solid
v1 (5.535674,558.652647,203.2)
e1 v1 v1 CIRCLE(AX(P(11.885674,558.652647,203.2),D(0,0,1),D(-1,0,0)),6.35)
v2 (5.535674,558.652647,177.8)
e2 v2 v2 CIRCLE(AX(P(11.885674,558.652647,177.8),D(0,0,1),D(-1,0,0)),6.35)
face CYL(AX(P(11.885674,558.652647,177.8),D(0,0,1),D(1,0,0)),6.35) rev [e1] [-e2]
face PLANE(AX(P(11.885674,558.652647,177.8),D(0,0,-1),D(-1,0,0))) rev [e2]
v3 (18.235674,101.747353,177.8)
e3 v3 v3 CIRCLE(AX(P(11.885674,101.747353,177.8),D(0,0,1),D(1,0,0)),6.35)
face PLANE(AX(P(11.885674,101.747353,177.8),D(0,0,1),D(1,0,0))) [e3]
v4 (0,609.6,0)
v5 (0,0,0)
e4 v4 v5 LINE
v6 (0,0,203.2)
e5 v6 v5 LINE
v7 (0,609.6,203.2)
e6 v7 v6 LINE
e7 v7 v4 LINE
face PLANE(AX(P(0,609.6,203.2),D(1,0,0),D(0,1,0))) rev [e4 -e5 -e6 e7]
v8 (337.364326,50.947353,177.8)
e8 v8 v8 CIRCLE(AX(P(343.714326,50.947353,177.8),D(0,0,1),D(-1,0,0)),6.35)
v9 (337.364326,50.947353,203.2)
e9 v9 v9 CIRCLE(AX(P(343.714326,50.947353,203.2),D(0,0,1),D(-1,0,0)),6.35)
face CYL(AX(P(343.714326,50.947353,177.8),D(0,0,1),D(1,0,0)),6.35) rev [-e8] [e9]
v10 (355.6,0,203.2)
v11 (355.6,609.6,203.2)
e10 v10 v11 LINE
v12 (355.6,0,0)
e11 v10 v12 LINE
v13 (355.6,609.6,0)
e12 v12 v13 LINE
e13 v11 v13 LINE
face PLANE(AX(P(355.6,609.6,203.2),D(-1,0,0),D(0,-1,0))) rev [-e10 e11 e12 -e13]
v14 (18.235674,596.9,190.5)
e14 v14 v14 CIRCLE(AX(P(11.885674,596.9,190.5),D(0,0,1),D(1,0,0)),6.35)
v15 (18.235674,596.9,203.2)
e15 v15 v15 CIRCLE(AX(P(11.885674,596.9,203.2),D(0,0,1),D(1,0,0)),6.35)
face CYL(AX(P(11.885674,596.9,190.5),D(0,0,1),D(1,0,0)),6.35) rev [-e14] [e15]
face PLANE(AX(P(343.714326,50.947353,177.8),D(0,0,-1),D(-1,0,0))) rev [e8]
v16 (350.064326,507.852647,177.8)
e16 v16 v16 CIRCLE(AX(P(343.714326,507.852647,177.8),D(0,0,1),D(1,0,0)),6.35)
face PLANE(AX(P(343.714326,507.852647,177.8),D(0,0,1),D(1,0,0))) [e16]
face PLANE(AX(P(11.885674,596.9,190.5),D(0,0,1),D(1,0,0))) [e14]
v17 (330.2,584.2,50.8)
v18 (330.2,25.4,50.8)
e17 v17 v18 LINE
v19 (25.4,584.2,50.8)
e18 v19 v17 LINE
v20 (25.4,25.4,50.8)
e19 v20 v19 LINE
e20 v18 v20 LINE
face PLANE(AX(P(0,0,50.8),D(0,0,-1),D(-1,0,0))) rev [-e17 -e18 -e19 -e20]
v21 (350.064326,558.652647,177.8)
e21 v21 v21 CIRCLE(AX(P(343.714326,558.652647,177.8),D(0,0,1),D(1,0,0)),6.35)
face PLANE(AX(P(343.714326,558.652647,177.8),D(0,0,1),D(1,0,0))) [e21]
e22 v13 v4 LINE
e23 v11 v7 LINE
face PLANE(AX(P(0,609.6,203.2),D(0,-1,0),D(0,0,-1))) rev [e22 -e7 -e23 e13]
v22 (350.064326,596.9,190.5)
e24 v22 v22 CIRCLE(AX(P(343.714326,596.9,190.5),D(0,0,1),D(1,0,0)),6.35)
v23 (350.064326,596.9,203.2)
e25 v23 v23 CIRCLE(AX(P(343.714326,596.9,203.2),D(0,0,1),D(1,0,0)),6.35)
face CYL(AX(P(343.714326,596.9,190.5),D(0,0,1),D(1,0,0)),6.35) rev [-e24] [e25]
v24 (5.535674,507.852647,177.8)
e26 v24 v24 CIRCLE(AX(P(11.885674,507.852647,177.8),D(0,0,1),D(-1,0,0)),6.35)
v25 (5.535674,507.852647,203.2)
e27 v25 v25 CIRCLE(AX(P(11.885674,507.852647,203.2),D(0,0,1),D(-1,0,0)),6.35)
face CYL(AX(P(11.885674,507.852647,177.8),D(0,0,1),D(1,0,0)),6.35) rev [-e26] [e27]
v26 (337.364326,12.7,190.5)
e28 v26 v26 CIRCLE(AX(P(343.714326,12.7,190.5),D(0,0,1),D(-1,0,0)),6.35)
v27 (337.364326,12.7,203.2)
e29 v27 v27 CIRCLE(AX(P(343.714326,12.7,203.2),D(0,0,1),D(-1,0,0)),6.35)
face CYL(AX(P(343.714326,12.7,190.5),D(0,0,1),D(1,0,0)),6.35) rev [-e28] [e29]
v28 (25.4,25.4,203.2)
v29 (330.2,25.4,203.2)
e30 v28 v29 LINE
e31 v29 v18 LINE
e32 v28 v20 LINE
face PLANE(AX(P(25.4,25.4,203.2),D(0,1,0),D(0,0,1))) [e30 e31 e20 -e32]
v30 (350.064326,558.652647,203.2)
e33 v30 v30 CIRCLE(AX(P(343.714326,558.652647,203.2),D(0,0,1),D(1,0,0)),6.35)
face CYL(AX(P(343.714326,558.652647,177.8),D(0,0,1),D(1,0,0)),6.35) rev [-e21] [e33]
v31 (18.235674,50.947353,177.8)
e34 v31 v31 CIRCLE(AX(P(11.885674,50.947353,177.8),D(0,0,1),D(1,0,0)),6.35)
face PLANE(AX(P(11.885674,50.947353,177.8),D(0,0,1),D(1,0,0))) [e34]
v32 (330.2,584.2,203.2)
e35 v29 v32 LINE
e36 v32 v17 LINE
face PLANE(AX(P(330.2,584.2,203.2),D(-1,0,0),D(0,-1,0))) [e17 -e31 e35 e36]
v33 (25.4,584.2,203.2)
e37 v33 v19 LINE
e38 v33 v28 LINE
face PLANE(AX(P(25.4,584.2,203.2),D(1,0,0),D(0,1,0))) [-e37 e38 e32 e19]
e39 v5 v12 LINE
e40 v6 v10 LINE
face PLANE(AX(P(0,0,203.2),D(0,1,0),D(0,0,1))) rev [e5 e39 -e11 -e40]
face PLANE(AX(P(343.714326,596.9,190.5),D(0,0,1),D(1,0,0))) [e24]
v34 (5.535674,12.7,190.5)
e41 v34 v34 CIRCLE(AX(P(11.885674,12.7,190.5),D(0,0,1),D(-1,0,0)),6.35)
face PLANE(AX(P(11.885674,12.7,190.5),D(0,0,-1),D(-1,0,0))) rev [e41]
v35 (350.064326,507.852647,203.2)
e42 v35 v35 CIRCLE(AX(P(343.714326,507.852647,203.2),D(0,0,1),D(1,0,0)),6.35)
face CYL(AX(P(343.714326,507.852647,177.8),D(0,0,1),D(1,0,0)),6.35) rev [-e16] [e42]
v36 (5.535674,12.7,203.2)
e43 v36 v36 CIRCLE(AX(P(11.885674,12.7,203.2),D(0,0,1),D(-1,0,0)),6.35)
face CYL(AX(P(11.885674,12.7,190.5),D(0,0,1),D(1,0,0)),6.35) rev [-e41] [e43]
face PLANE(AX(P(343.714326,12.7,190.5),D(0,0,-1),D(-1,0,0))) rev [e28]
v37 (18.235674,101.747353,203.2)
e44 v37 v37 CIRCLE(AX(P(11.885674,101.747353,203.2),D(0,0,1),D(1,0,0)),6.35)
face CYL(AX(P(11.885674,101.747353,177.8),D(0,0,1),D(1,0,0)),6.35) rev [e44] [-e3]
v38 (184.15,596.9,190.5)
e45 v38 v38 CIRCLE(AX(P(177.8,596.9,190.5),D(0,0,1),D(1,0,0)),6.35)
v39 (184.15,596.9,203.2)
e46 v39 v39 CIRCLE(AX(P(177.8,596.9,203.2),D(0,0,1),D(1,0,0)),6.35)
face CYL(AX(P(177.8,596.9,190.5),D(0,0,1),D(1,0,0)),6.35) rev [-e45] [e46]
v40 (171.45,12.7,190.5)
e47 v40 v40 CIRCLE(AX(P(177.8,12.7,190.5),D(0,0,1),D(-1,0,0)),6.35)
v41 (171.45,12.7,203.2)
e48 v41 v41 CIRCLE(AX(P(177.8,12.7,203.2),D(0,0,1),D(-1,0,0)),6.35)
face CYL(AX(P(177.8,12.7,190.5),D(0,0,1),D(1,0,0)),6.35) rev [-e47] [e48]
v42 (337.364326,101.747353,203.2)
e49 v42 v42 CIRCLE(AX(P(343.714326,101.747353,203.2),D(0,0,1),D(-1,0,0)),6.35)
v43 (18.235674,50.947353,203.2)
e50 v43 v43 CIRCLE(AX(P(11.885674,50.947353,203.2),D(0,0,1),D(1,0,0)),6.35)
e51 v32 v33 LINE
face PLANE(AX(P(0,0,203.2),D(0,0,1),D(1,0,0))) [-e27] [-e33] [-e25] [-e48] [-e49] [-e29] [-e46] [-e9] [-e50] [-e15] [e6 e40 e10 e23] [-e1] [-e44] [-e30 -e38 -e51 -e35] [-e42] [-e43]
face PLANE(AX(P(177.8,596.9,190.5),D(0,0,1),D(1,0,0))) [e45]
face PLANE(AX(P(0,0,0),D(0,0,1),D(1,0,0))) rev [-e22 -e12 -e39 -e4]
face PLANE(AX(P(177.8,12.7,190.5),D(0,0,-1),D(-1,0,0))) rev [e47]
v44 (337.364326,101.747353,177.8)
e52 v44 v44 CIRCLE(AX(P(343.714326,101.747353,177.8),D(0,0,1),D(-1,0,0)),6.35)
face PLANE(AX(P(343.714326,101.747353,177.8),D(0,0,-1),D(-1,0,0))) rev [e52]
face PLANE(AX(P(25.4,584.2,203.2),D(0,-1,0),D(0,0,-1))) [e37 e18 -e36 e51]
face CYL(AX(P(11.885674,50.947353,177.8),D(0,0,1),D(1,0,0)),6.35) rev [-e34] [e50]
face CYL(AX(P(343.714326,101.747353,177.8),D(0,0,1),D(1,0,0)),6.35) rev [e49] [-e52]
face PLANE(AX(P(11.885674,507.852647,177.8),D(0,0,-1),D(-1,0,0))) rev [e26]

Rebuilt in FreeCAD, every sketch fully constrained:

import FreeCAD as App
import Part
import Sketcher
Q = App.Units.Quantity

doc = App.newDocument("Part")
body = doc.addObject("PartDesign::Body", "Body")

sketch1 = body.newObject("Sketcher::SketchObject", "Sketch")
sketch1.AttachmentSupport = (doc.getObject("XY_Plane"), [""])
sketch1.MapMode = "FlatFace"
sketch1.addGeometry([
    Part.LineSegment(App.Vector(0, 610, 0), App.Vector(0, 0, 0)),
    Part.LineSegment(App.Vector(0, 0, 0), App.Vector(356, 0, 0)),
    Part.LineSegment(App.Vector(356, 0, 0), App.Vector(356, 610, 0)),
    Part.LineSegment(App.Vector(356, 610, 0), App.Vector(0, 610, 0)),
    Part.LineSegment(App.Vector(330, 25, 0), App.Vector(25, 25, 0)),
    Part.LineSegment(App.Vector(25, 25, 0), App.Vector(25, 584, 0)),
    Part.LineSegment(App.Vector(25, 584, 0), App.Vector(330, 584, 0)),
    Part.LineSegment(App.Vector(330, 584, 0), App.Vector(330, 25, 0)),
], False)
sketch1.addConstraint([
    Sketcher.Constraint("Coincident", 0, 2, 1, 1),
    Sketcher.Constraint("Coincident", 1, 2, 2, 1),
    Sketcher.Constraint("Coincident", 2, 2, 3, 1),
    Sketcher.Constraint("Coincident", 3, 2, 0, 1),
    Sketcher.Constraint("Coincident", 4, 2, 5, 1),
    Sketcher.Constraint("Coincident", 5, 2, 6, 1),
    Sketcher.Constraint("Coincident", 6, 2, 7, 1),
    Sketcher.Constraint("Coincident", 7, 2, 4, 1),
    Sketcher.Constraint("Vertical", 0),
    Sketcher.Constraint("Horizontal", 1),
    Sketcher.Constraint("Vertical", 2),
    Sketcher.Constraint("Horizontal", 3),
    Sketcher.Constraint("Horizontal", 4),
    Sketcher.Constraint("Vertical", 5),
    Sketcher.Constraint("Horizontal", 6),
    Sketcher.Constraint("Vertical", 7),
    Sketcher.Constraint("Coincident", 0, 2, -1, 1),
    Sketcher.Constraint("DistanceX", 1, 1, 1, 2, Q("14 in")),
    Sketcher.Constraint("DistanceX", 4, 2, 4, 1, Q("12 in")),
    Sketcher.Constraint("DistanceY", 0, 2, 0, 1, Q("24 in")),
    Sketcher.Constraint("DistanceY", 5, 1, 5, 2, Q("22 in")),
    Sketcher.Constraint("DistanceX", -1, 1, 4, 2, Q("1 in")),
    Sketcher.Constraint("DistanceY", -1, 1, 4, 2, Q("1 in")),
])
pad1 = body.newObject("PartDesign::Pad", "Pad")
pad1.Profile = sketch1
pad1.Length = Q("8 in")

sketch2 = body.newObject("Sketcher::SketchObject", "Sketch001")
sketch2.AttachmentSupport = (doc.getObject("XY_Plane"), [""])
sketch2.MapMode = "FlatFace"
sketch2.addGeometry([
    Part.LineSegment(App.Vector(330, 584, 0), App.Vector(330, 25, 0)),
    Part.LineSegment(App.Vector(330, 25, 0), App.Vector(25, 25, 0)),
    Part.LineSegment(App.Vector(25, 25, 0), App.Vector(25, 584, 0)),
    Part.LineSegment(App.Vector(25, 584, 0), App.Vector(330, 584, 0)),
], False)
sketch2.addConstraint([
    Sketcher.Constraint("Coincident", 0, 2, 1, 1),
    Sketcher.Constraint("Coincident", 1, 2, 2, 1),
    Sketcher.Constraint("Coincident", 2, 2, 3, 1),
    Sketcher.Constraint("Coincident", 3, 2, 0, 1),
    Sketcher.Constraint("Vertical", 0),
    Sketcher.Constraint("Horizontal", 1),
    Sketcher.Constraint("Vertical", 2),
    Sketcher.Constraint("Horizontal", 3),
    Sketcher.Constraint("DistanceX", 1, 2, 1, 1, Q("12 in")),
    Sketcher.Constraint("DistanceY", 0, 2, 0, 1, Q("22 in")),
    Sketcher.Constraint("DistanceX", -1, 1, 0, 2, Q("13 in")),
    Sketcher.Constraint("DistanceY", -1, 1, 0, 2, Q("1 in")),
])
pad2 = body.newObject("PartDesign::Pad", "Pad001")
pad2.Profile = sketch2
pad2.Length = Q("2 in")

sketch3 = body.newObject("Sketcher::SketchObject", "Sketch002")
sketch3.AttachmentSupport = (doc.getObject("XY_Plane"), [""])
sketch3.MapMode = "FlatFace"
sketch3.AttachmentOffset = App.Placement(App.Vector(0, 0, 8 * 25.4), App.Rotation())
sketch3.addGeometry([
    Part.Circle(App.Vector(12, 51, 0), App.Vector(0, 0, 1), 6),
    Part.Circle(App.Vector(12, 102, 0), App.Vector(0, 0, 1), 6),
    Part.Circle(App.Vector(12, 508, 0), App.Vector(0, 0, 1), 6),
    Part.Circle(App.Vector(12, 559, 0), App.Vector(0, 0, 1), 6),
    Part.Circle(App.Vector(344, 51, 0), App.Vector(0, 0, 1), 6),
    Part.Circle(App.Vector(344, 102, 0), App.Vector(0, 0, 1), 6),
    Part.Circle(App.Vector(344, 559, 0), App.Vector(0, 0, 1), 6),
    Part.Circle(App.Vector(344, 508, 0), App.Vector(0, 0, 1), 6),
], False)
sketch3.addConstraint([
    Sketcher.Constraint("Equal", 0, 1),
    Sketcher.Constraint("Equal", 1, 2),
    Sketcher.Constraint("Equal", 2, 3),
    Sketcher.Constraint("Equal", 3, 4),
    Sketcher.Constraint("Equal", 4, 5),
    Sketcher.Constraint("Equal", 5, 6),
    Sketcher.Constraint("Equal", 6, 7),
    Sketcher.Constraint("Horizontal", 0, 3, 4, 3),
    Sketcher.Constraint("Horizontal", 1, 3, 5, 3),
    Sketcher.Constraint("Horizontal", 3, 3, 6, 3),
    Sketcher.Constraint("Horizontal", 2, 3, 7, 3),
    Sketcher.Constraint("Vertical", 0, 3, 1, 3),
    Sketcher.Constraint("Vertical", 1, 3, 2, 3),
    Sketcher.Constraint("Vertical", 2, 3, 3, 3),
    Sketcher.Constraint("Vertical", 4, 3, 5, 3),
    Sketcher.Constraint("Vertical", 5, 3, 6, 3),
    Sketcher.Constraint("Vertical", 6, 3, 7, 3),
    Sketcher.Constraint("Diameter", 0, Q("0.5 in")),
    Sketcher.Constraint("DistanceY", 0, 3, 1, 3, Q("2 in")),
    Sketcher.Constraint("DistanceY", 2, 3, 3, 3, Q("2 in")),
    Sketcher.Constraint("DistanceX", 0, 3, 4, 3, 331.828652),
    Sketcher.Constraint("DistanceX", -1, 1, 0, 3, 11.885674),
    Sketcher.Constraint("DistanceY", -1, 1, 0, 3, 50.947353),
    Sketcher.Constraint("DistanceY", -1, 1, 2, 3, 507.852647),
])
pocket1 = body.newObject("PartDesign::Pocket", "Pocket")
pocket1.Profile = sketch3
pocket1.Length = Q("1 in")

sketch4 = body.newObject("Sketcher::SketchObject", "Sketch003")
sketch4.AttachmentSupport = (doc.getObject("XY_Plane"), [""])
sketch4.MapMode = "FlatFace"
sketch4.AttachmentOffset = App.Placement(App.Vector(0, 0, 8 * 25.4), App.Rotation())
sketch4.addGeometry([
    Part.Circle(App.Vector(344, 597, 0), App.Vector(0, 0, 1), 6),
    Part.Circle(App.Vector(178, 597, 0), App.Vector(0, 0, 1), 6),
    Part.Circle(App.Vector(12, 597, 0), App.Vector(0, 0, 1), 6),
    Part.Circle(App.Vector(344, 13, 0), App.Vector(0, 0, 1), 6),
    Part.Circle(App.Vector(178, 13, 0), App.Vector(0, 0, 1), 6),
    Part.Circle(App.Vector(12, 13, 0), App.Vector(0, 0, 1), 6),
], False)
sketch4.addConstraint([
    Sketcher.Constraint("Equal", 0, 1),
    Sketcher.Constraint("Equal", 1, 2),
    Sketcher.Constraint("Equal", 2, 3),
    Sketcher.Constraint("Equal", 3, 4),
    Sketcher.Constraint("Equal", 4, 5),
    Sketcher.Constraint("Horizontal", 0, 3, 1, 3),
    Sketcher.Constraint("Horizontal", 1, 3, 2, 3),
    Sketcher.Constraint("Horizontal", 3, 3, 4, 3),
    Sketcher.Constraint("Horizontal", 4, 3, 5, 3),
    Sketcher.Constraint("Vertical", 0, 3, 3, 3),
    Sketcher.Constraint("Vertical", 1, 3, 4, 3),
    Sketcher.Constraint("Vertical", 2, 3, 5, 3),
    Sketcher.Constraint("Diameter", 0, Q("0.5 in")),
    Sketcher.Constraint("DistanceX", -1, 1, 1, 3, Q("7 in")),
    Sketcher.Constraint("DistanceY", 3, 3, 0, 3, Q("23 in")),
    Sketcher.Constraint("DistanceY", -1, 1, 0, 3, Q("23.5 in")),
    Sketcher.Constraint("DistanceX", 2, 3, 0, 3, 331.828652),
    Sketcher.Constraint("DistanceX", -1, 1, 0, 3, 343.714326),
])
pocket2 = body.newObject("PartDesign::Pocket", "Pocket001")
pocket2.Profile = sketch4
pocket2.Length = Q("0.5 in")

doc.recompute()
